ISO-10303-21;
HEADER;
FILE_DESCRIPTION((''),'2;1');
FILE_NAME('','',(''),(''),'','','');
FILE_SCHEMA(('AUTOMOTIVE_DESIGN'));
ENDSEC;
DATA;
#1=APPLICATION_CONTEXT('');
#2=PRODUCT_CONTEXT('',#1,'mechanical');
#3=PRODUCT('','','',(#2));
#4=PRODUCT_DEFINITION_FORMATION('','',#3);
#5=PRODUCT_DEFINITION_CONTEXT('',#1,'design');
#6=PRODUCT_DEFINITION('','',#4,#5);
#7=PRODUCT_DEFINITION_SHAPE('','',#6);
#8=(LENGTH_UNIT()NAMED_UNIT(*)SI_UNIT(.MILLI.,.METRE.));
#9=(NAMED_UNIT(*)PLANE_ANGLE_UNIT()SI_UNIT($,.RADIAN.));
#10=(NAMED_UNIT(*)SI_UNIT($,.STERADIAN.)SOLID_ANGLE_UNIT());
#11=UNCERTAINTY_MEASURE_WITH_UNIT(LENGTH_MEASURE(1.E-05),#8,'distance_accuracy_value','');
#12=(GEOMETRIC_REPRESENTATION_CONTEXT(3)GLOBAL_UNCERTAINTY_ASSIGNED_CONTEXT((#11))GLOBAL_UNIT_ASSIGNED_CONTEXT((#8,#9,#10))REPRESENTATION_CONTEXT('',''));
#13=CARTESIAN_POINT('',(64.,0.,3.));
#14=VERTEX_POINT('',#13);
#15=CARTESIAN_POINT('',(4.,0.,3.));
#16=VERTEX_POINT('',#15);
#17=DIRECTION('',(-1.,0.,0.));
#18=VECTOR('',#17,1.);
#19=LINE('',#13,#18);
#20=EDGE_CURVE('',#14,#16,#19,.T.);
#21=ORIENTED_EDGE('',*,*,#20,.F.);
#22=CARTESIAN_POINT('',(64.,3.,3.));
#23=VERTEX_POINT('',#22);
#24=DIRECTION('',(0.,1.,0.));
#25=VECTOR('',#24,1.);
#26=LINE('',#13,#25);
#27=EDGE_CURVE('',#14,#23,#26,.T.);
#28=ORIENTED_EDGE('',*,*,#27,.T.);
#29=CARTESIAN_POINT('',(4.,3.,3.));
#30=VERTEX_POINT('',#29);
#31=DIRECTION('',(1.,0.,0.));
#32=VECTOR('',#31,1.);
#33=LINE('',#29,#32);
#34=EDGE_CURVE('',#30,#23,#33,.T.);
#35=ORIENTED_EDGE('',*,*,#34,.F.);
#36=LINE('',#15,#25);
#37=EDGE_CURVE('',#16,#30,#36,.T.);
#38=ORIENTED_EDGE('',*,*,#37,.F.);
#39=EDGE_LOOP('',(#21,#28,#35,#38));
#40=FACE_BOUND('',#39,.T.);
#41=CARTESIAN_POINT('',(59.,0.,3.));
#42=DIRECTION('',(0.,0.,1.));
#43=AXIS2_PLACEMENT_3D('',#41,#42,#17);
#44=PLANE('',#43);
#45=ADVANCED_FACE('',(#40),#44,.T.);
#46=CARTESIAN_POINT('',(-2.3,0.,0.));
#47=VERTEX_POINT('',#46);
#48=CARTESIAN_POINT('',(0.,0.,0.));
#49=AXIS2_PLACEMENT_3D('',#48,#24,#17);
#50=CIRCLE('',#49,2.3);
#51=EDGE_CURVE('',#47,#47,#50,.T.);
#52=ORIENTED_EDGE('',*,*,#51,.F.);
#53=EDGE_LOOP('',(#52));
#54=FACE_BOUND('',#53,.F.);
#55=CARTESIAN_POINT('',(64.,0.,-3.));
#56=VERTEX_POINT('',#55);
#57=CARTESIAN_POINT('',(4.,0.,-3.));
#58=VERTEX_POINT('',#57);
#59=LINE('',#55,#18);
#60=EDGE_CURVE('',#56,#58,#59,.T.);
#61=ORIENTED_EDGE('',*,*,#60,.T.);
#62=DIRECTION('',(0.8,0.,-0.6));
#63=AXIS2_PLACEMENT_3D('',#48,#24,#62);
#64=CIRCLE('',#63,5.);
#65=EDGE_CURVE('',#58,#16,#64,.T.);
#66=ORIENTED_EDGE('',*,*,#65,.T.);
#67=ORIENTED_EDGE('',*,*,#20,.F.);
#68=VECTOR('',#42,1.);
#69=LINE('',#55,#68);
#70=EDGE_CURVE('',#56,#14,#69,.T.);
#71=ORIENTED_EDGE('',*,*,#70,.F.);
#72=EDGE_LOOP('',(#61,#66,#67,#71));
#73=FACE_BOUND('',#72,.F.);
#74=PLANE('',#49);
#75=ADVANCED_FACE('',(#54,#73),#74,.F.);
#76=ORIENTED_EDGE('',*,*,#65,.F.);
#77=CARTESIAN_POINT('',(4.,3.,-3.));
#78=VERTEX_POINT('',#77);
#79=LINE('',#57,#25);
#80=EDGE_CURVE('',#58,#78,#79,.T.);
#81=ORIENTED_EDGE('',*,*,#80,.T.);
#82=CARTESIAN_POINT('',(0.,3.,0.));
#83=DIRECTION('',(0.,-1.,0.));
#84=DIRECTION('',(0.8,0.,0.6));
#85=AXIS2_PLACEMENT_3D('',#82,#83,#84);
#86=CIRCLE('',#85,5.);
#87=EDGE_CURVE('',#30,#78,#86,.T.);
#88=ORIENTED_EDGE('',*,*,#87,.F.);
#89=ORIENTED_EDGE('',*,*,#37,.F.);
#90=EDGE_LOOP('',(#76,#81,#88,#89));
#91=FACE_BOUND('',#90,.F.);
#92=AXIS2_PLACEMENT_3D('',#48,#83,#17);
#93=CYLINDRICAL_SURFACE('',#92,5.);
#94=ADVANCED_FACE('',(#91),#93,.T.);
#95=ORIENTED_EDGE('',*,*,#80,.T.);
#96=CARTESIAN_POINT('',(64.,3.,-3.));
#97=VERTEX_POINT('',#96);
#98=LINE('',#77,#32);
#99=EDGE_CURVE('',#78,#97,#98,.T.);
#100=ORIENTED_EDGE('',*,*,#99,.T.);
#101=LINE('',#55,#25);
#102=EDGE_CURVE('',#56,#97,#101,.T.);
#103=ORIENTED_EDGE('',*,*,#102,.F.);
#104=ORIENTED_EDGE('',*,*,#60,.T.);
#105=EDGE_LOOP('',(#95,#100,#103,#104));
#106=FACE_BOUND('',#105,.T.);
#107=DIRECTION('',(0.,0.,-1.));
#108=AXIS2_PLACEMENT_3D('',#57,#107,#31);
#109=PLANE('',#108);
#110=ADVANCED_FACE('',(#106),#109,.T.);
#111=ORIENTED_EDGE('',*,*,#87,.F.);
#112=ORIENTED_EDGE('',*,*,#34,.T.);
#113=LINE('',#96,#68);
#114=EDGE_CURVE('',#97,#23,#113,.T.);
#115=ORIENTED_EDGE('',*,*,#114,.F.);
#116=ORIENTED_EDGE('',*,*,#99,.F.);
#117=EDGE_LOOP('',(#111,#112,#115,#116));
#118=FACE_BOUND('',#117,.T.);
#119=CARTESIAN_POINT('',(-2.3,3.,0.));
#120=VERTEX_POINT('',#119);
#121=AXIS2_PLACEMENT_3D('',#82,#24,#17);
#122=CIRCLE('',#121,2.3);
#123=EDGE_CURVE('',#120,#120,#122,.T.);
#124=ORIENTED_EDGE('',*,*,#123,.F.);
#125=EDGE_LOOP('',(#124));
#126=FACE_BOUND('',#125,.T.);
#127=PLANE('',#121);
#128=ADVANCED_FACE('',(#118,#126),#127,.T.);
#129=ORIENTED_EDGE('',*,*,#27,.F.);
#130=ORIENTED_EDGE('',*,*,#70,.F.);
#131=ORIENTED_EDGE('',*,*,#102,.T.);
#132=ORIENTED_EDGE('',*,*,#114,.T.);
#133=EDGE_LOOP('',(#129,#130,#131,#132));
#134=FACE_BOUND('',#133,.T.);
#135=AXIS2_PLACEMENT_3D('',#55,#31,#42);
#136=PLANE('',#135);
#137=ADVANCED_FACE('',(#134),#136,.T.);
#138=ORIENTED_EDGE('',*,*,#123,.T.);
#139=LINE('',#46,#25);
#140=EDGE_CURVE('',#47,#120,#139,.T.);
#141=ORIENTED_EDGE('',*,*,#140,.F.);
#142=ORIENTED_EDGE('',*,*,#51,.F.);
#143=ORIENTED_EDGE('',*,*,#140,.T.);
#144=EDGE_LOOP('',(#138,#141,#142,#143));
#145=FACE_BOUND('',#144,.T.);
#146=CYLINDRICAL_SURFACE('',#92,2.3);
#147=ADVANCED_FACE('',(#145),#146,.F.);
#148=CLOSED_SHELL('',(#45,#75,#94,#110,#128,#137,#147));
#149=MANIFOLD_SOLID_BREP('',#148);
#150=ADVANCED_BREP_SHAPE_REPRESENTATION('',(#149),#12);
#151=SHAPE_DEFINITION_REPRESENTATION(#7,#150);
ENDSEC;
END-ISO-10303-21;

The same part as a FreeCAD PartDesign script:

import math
import FreeCAD as App
import Part
import Sketcher
Q = App.Units.Quantity

doc = App.newDocument("Part")
body = doc.addObject("PartDesign::Body", "Body")

# Sketch on XZ plane
sketch1 = body.newObject("Sketcher::SketchObject", "Sketch")
sketch1.AttachmentSupport = (doc.getObject("XZ_Plane"), [""])
sketch1.MapMode = "FlatFace"
sketch1.addGeometry(Part.ArcOfCircle(Part.Circle(App.Vector(0, 0, 0), App.Vector(0, 0, 1), 5), math.radians(37), math.radians(323)), False)
sketch1.addGeometry(Part.LineSegment(App.Vector(4, 3, 0), App.Vector(64, 3, 0)), False)
sketch1.addGeometry(Part.LineSegment(App.Vector(64, 3, 0), App.Vector(64, -3, 0)), False)
sketch1.addGeometry(Part.LineSegment(App.Vector(64, -3, 0), App.Vector(4, -3, 0)), False)
sketch1.addGeometry(Part.Circle(App.Vector(0, 0, 0), App.Vector(0, 0, 1), 2.3), False)
sketch1.addConstraint(Sketcher.Constraint("Coincident", 0, 1, 1, 1))
sketch1.addConstraint(Sketcher.Constraint("Coincident", 1, 2, 2, 1))
sketch1.addConstraint(Sketcher.Constraint("Coincident", 2, 2, 3, 1))
sketch1.addConstraint(Sketcher.Constraint("Coincident", 3, 2, 0, 2))
sketch1.addConstraint(Sketcher.Constraint("Horizontal", 1))
sketch1.addConstraint(Sketcher.Constraint("Vertical", 2))
sketch1.addConstraint(Sketcher.Constraint("Horizontal", 3))
sketch1.addConstraint(Sketcher.Constraint("Coincident", 0, 3, -1, 1))
sketch1.addConstraint(Sketcher.Constraint("Coincident", 4, 3, -1, 1))
sketch1.addConstraint(Sketcher.Constraint("Vertical", 0, 1, 3, 2))
sketch1.addConstraint(Sketcher.Constraint("Radius", 0, Q("5 mm")))
sketch1.addConstraint(Sketcher.Constraint("Diameter", 4, Q("4.6 mm")))
sketch1.addConstraint(Sketcher.Constraint("DistanceY", 2, 2, 2, 1, Q("6 mm")))
sketch1.addConstraint(Sketcher.Constraint("DistanceX", 1, 1, 1, 2, Q("60 mm")))
pad1 = body.newObject("PartDesign::Pad", "Pad")
pad1.Profile = sketch1
pad1.Length = 3
pad1.Reversed = True

doc.recompute()
